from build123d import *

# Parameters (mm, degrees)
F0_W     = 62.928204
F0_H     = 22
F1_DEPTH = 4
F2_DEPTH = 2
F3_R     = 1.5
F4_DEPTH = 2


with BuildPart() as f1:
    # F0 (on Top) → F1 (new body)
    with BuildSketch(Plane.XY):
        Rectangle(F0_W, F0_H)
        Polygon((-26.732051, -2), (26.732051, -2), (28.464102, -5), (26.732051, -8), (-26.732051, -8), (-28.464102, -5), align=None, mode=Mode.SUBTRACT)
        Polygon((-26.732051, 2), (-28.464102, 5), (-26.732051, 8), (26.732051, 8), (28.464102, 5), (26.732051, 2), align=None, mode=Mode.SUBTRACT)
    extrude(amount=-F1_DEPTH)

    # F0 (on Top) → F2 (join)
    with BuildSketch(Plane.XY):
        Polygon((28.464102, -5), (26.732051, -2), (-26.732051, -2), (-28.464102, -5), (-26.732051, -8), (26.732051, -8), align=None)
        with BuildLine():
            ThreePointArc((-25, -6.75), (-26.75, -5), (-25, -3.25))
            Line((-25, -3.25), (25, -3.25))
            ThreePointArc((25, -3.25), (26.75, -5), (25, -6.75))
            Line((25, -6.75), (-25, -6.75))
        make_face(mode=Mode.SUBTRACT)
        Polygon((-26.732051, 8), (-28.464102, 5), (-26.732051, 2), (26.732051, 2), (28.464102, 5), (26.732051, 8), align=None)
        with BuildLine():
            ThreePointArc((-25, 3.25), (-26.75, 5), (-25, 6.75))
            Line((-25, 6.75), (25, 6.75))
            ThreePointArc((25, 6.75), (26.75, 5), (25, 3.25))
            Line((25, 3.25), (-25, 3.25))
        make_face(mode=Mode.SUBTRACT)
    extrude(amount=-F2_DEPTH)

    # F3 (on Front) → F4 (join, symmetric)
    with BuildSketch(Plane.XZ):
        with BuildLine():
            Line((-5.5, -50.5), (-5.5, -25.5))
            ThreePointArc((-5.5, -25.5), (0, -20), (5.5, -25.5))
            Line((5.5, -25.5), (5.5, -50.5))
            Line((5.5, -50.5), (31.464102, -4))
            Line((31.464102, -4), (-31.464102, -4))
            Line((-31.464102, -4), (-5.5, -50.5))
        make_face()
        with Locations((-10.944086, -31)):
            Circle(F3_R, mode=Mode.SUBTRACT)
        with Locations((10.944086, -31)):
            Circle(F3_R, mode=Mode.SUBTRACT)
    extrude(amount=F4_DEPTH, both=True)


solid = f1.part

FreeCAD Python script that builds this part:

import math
import FreeCAD as App
import Part
import Sketcher
Q = App.Units.Quantity


def add_polygon(sketch, points):
    """Adds a closed chain of lines whose ends are joined by coincident constraints."""
    first, n = sketch.GeometryCount, len(points)
    for a, b in zip(points, points[1:] + points[:1]):
        sketch.addGeometry(Part.LineSegment(App.Vector(*a, 0), App.Vector(*b, 0)), False)
    for i in range(n):
        sketch.addConstraint(Sketcher.Constraint("Coincident", first + i, 2, first + (i + 1) % n, 1))

doc = App.newDocument("Part")
body = doc.addObject("PartDesign::Body", "Body")

sketch1 = doc.addObject("Sketcher::SketchObject", "Sketch")
body.addObject(sketch1)
sketch1.AttachmentSupport = (doc.XY_Plane, [""])
sketch1.MapMode = "FlatFace"
add_polygon(sketch1, [(-31.5, 11), (-31.5, -11), (31.5, -11), (31.5, 11)])
add_polygon(sketch1, [(-28.5, -5), (-26.7, -2), (26.7, -2), (28.5, -5), (26.7, -8), (-26.7, -8)])
add_polygon(sketch1, [(26.7, 2), (-26.7, 2), (-28.5, 5), (-26.7, 8), (26.7, 8), (28.5, 5)])
sketch1.addConstraint([
    Sketcher.Constraint("Vertical", 0),
    Sketcher.Constraint("Horizontal", 1),
    Sketcher.Constraint("Vertical", 2),
    Sketcher.Constraint("Horizontal", 3),
    Sketcher.Constraint("Horizontal", 5),
    Sketcher.Constraint("Horizontal", 8),
    Sketcher.Constraint("Horizontal", 10),
    Sketcher.Constraint("Horizontal", 13),
    Sketcher.Constraint("Symmetric", 0, 2, 2, 2, -1, 1),
    Sketcher.Constraint("Symmetric", 5, 2, 10, 2, -1, 1),
    Sketcher.Constraint("Symmetric", 6, 2, 11, 2, -1, 1),
    Sketcher.Constraint("Symmetric", 7, 2, 12, 2, -1, 1),
    Sketcher.Constraint("Symmetric", 9, 2, 14, 2, -1, 1),
    Sketcher.Constraint("Symmetric", 6, 2, 9, 2, -2),
    Sketcher.Constraint("Parallel", 4, 7),
    Sketcher.Constraint("Parallel", 6, 9),
    Sketcher.Constraint("Parallel", 11, 14),
    Sketcher.Constraint("Parallel", 12, 15),
    Sketcher.Constraint("Vertical", 5, 2, 7, 2),
    Sketcher.Constraint("Vertical", 4, 2, 8, 2),
    Sketcher.Constraint("DistanceY", 0, 2, 0, 1, Q("22 mm")),
    Sketcher.Constraint("Angle", 4, Q("59.999997 deg")),
    Sketcher.Constraint("DistanceY", 4, 2, -1, 1, Q("2 mm")),
    Sketcher.Constraint("DistanceY", 6, 2, -1, 1, Q("5 mm")),
    Sketcher.Constraint("DistanceX", 6, 2, 1, 2, Q("3 mm")),
    Sketcher.Constraint("DistanceX", 5, 1, 5, 2, Q("53.464102 mm")),
])
pad1 = doc.addObject("PartDesign::Pad", "Pad")
body.addObject(pad1)
pad1.Profile = sketch1
pad1.Length = 4
pad1.Reversed = True

sketch2 = doc.addObject("Sketcher::SketchObject", "Sketch001")
body.addObject(sketch2)
sketch2.AttachmentSupport = (doc.XY_Plane, [""])
sketch2.MapMode = "FlatFace"
add_polygon(sketch2, [(28.5, -5), (26.7, -2), (-26.7, -2), (-28.5, -5), (-26.7, -8), (26.7, -8)])
sketch2.addGeometry(Part.LineSegment(App.Vector(25, -6.8, 0), App.Vector(-25, -6.8, 0)), False)
sketch2.addGeometry(Part.ArcOfCircle(Part.Circle(App.Vector(-25, -5, 0), App.Vector(0, 0, 1), 1.8), math.radians(90), math.radians(270)), False)
sketch2.addGeometry(Part.LineSegment(App.Vector(-25, -3.2, 0), App.Vector(25, -3.2, 0)), False)
sketch2.addGeometry(Part.ArcOfCircle(Part.Circle(App.Vector(25, -5, 0), App.Vector(0, 0, 1), 1.8), math.radians(-90), math.radians(90)), False)
add_polygon(sketch2, [(-26.7, 8), (-28.5, 5), (-26.7, 2), (26.7, 2), (28.5, 5), (26.7, 8)])
sketch2.addGeometry(Part.LineSegment(App.Vector(25, 3.2, 0), App.Vector(-25, 3.2, 0)), False)
sketch2.addGeometry(Part.ArcOfCircle(Part.Circle(App.Vector(-25, 5, 0), App.Vector(0, 0, 1), 1.8), math.radians(90), math.radians(270)), False)
sketch2.addGeometry(Part.LineSegment(App.Vector(-25, 6.8, 0), App.Vector(25, 6.8, 0)), False)
sketch2.addGeometry(Part.ArcOfCircle(Part.Circle(App.Vector(25, 5, 0), App.Vector(0, 0, 1), 1.8), math.radians(-90), math.radians(90)), False)
sketch2.addConstraint([
    Sketcher.Constraint("Tangent", 6, 2, 7, 2),
    Sketcher.Constraint("Tangent", 7, 1, 8, 1),
    Sketcher.Constraint("Tangent", 8, 2, 9, 2),
    Sketcher.Constraint("Tangent", 9, 1, 6, 1),
    Sketcher.Constraint("Tangent", 16, 2, 17, 2),
    Sketcher.Constraint("Tangent", 17, 1, 18, 1),
    Sketcher.Constraint("Tangent", 18, 2, 19, 2),
    Sketcher.Constraint("Tangent", 19, 1, 16, 1),
    Sketcher.Constraint("Horizontal", 1),
    Sketcher.Constraint("Horizontal", 4),
    Sketcher.Constraint("Horizontal", 6),
    Sketcher.Constraint("Horizontal", 8),
    Sketcher.Constraint("Horizontal", 12),
    Sketcher.Constraint("Horizontal", 15),
    Sketcher.Constraint("Horizontal", 16),
    Sketcher.Constraint("Horizontal", 18),
    Sketcher.Constraint("Equal", 9, 17),
    Sketcher.Constraint("Symmetric", 9, 3, 17, 3, -1, 1),
    Sketcher.Constraint("Symmetric", 5, 2, 10, 2, -1, 1),
    Sketcher.Constraint("Symmetric", 0, 2, 11, 2, -1, 1),
    Sketcher.Constraint("Symmetric", 2, 2, 13, 2, -1, 1),
    Sketcher.Constraint("Symmetric", 3, 2, 14, 2, -1, 1),
    Sketcher.Constraint("Symmetric", 2, 2, 5, 2, -2),
    Sketcher.Constraint("Parallel", 0, 3),
    Sketcher.Constraint("Parallel", 2, 5),
    Sketcher.Constraint("Parallel", 5, 10),
    Sketcher.Constraint("Parallel", 10, 13),
    Sketcher.Constraint("Horizontal", 9, 3, 2, 2),
    Sketcher.Constraint("Vertical", 7, 3, 17, 3),
    Sketcher.Constraint("Vertical", 9, 3, 19, 3),
    Sketcher.Constraint("Vertical", 1, 2, 3, 2),
    Sketcher.Constraint("Vertical", 0, 2, 4, 2),
    Sketcher.Constraint("DistanceX", 6, 2, 6, 1, Q("50 mm")),
    Sketcher.Constraint("Angle", 0, Q("120.000003 deg")),
    Sketcher.Constraint("Radius", 7, Q("1.75 mm")),
    Sketcher.Constraint("DistanceY", 7, 3, -1, 1, Q("5 mm")),
    Sketcher.Constraint("DistanceY", 0, 2, -1, 1, Q("2 mm")),
    Sketcher.Constraint("DistanceX", 1, 2, 1, 1, Q("53.464102 mm")),
])
pad2 = doc.addObject("PartDesign::Pad", "Pad001")
body.addObject(pad2)
pad2.Profile = sketch2
pad2.Length = 2
pad2.Reversed = True

sketch3 = doc.addObject("Sketcher::SketchObject", "Sketch002")
body.addObject(sketch3)
sketch3.AttachmentSupport = (doc.XZ_Plane, [""])
sketch3.MapMode = "FlatFace"
sketch3.addGeometry([
    Part.LineSegment(App.Vector(-5.5, -50.5, 0), App.Vector(-5.5, -25.5, 0)),
    Part.ArcOfCircle(Part.Circle(App.Vector(0, -25.5, 0), App.Vector(0, 0, 1), 5.5), math.radians(0), math.radians(180)),
    Part.LineSegment(App.Vector(5.5, -25.5, 0), App.Vector(5.5, -50.5, 0)),
    Part.LineSegment(App.Vector(5.5, -50.5, 0), App.Vector(31.5, -4, 0)),
    Part.LineSegment(App.Vector(31.5, -4, 0), App.Vector(-31.5, -4, 0)),
    Part.LineSegment(App.Vector(-31.5, -4, 0), App.Vector(-5.5, -50.5, 0)),
    Part.Circle(App.Vector(-10.9, -31, 0), App.Vector(0, 0, 1), 1.5),
    Part.Circle(App.Vector(10.9, -31, 0), App.Vector(0, 0, 1), 1.5),
], False)
sketch3.addConstraint([
    Sketcher.Constraint("Tangent", 0, 2, 1, 2),
    Sketcher.Constraint("Tangent", 1, 1, 2, 1),
    Sketcher.Constraint("Coincident", 2, 2, 3, 1),
    Sketcher.Constraint("Coincident", 3, 2, 4, 1),
    Sketcher.Constraint("Coincident", 4, 2, 5, 1),
    Sketcher.Constraint("Coincident", 5, 2, 0, 1),
    Sketcher.Constraint("Vertical", 0),
    Sketcher.Constraint("Vertical", 2),
    Sketcher.Constraint("Horizontal", 4),
    Sketcher.Constraint("Equal", 6, 7),
    Sketcher.Constraint("Symmetric", 6, 3, 7, 3, -2),
    Sketcher.Constraint("Symmetric", 2, 2, 5, 2, -2),
    Sketcher.Constraint("Equal", 3, 5),
    Sketcher.Constraint("Diameter", 6, Q("3 mm")),
    Sketcher.Constraint("Radius", 1, Q("5.5 mm")),
    Sketcher.Constraint("DistanceY", 0, 1, 0, 2, Q("25 mm")),
    Sketcher.Constraint("DistanceY", 6, 3, -1, 1, Q("31 mm")),
    Sketcher.Constraint("DistanceY", 3, 2, -1, 1, Q("4 mm")),
    Sketcher.Constraint("DistanceY", 1, 3, -1, 1, Q("25.5 mm")),
    Sketcher.Constraint("DistanceX", 0, 2, 3, 2, Q("36.964102 mm")),
    Sketcher.Constraint("DistanceX", 6, 3, 3, 2, Q("42.408188 mm")),
])
pad3 = doc.addObject("PartDesign::Pad", "Pad002")
body.addObject(pad3)
pad3.Profile = sketch3
pad3.Length = 4
pad3.Midplane = True

doc.recompute()
